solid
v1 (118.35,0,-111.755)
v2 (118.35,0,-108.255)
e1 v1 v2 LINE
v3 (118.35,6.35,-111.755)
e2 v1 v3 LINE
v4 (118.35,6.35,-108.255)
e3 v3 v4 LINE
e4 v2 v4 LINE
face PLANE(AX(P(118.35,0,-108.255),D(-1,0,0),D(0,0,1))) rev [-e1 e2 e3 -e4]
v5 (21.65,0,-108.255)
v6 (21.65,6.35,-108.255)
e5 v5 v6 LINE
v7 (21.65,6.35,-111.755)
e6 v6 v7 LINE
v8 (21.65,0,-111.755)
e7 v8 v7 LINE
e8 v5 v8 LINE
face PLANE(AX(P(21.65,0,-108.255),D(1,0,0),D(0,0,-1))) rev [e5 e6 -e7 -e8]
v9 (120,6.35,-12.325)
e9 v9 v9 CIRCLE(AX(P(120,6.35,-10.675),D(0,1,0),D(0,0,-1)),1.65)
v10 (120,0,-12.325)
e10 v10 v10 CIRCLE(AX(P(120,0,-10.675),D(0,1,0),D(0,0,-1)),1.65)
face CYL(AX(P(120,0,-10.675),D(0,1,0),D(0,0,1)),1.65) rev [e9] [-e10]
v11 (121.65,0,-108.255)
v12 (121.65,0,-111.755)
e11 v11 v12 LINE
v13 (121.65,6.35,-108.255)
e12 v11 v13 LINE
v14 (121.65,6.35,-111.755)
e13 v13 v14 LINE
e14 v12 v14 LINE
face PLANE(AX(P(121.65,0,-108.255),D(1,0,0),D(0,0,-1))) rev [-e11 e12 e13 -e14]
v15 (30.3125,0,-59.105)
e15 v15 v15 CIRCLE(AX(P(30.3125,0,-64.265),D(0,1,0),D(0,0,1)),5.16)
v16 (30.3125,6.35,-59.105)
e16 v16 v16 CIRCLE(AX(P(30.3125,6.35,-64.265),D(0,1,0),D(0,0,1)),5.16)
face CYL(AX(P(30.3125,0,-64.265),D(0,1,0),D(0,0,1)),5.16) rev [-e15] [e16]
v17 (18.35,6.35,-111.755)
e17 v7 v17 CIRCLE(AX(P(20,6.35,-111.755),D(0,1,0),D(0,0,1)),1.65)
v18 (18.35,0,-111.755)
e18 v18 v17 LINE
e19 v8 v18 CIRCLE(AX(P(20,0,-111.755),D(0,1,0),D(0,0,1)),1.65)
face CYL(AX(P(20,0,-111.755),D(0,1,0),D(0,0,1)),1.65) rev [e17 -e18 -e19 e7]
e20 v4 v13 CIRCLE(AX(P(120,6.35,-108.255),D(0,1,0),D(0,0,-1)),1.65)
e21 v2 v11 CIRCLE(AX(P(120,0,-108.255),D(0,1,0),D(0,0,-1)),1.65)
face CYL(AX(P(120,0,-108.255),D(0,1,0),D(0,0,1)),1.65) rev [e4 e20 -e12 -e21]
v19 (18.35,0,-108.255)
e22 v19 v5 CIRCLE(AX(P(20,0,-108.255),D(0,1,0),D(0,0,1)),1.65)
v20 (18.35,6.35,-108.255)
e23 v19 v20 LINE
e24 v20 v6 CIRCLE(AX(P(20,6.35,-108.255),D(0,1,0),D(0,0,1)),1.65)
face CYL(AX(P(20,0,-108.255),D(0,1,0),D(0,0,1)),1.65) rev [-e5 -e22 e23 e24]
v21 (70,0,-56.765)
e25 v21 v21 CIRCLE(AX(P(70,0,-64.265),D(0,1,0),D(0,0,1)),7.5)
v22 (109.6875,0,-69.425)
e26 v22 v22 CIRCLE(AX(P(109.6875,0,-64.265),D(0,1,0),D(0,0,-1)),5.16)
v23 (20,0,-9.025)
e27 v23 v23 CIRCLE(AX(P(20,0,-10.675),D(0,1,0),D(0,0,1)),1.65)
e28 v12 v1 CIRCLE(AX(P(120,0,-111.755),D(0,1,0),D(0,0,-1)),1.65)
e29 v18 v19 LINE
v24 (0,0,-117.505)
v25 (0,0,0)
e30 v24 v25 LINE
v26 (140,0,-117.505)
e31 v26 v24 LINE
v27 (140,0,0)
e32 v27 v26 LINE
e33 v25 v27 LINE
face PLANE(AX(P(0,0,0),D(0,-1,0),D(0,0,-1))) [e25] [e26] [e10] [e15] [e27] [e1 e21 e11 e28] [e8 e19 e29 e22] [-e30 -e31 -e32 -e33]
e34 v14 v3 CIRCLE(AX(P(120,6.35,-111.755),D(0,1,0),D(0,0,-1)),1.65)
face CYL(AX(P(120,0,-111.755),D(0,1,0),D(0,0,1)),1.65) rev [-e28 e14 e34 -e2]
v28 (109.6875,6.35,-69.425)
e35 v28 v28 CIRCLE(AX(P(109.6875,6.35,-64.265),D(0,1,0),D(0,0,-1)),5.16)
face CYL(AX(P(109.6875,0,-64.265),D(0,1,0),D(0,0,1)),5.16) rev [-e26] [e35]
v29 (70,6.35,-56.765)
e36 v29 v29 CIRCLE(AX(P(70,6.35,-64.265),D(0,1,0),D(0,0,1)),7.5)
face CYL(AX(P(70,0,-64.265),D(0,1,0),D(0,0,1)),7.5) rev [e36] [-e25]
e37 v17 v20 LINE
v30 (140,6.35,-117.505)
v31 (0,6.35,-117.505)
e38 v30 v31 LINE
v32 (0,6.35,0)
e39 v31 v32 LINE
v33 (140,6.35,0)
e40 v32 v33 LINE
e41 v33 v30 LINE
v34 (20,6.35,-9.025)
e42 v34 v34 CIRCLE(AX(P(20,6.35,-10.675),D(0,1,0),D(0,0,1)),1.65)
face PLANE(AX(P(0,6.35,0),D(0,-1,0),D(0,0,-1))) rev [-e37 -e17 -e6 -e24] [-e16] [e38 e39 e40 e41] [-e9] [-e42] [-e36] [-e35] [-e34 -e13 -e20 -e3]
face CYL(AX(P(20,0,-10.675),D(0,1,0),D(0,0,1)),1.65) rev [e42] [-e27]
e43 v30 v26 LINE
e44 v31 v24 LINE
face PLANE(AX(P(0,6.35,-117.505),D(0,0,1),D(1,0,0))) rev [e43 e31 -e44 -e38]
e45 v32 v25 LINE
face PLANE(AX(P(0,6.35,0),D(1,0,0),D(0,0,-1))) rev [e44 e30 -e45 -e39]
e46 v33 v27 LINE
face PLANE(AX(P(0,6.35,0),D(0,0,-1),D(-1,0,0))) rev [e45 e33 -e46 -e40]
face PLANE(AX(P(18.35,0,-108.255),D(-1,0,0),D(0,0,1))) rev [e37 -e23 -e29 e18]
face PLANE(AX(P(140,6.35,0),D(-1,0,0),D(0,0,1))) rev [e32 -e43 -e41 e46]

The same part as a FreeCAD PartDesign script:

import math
import FreeCAD as App
import Part
import Sketcher

V = App.Vector
Q = App.Units.Quantity


def add_polygon(sketch, points):
    """Adds a closed chain of lines whose ends are joined by coincident constraints."""
    first, n = sketch.GeometryCount, len(points)
    for a, b in zip(points, points[1:] + points[:1]):
        sketch.addGeometry(Part.LineSegment(App.Vector(*a, 0), App.Vector(*b, 0)), False)
    for i in range(n):
        sketch.addConstraint(Sketcher.Constraint("Coincident", first + i, 2, first + (i + 1) % n, 1))

doc = App.newDocument("Part")
params = doc.addObject("Spreadsheet::Sheet", "Params")
for row, (alias, value) in enumerate([
    ("sketch1_width", "140 mm"),
    ("pad1_length", "6.35 mm"),
    ("sketch2_diameter", "15 mm"),
    ("sketch2_diameter2", "3.3 mm"),
    ("sketch2_diameter3", "10.32 mm"),
    ("sketch2_height", "3.5 mm"),
], start=1):
    params.set(f"A{row}", alias)
    params.set(f"B{row}", "=" + value)
    params.setAlias(f"B{row}", alias)

body = doc.addObject("PartDesign::Body", "Body")

sketch1 = body.newObject("Sketcher::SketchObject", "Sketch")
sketch1.AttachmentSupport = (doc.getObject("XZ_Plane"), [""])
sketch1.MapMode = "FlatFace"
add_polygon(sketch1, [(0, -118), (0, 0), (140, 0), (140, -118)])
sketch1.addConstraint([
    Sketcher.Constraint("Vertical", 0),
    Sketcher.Constraint("Horizontal", 1),
    Sketcher.Constraint("Vertical", 2),
    Sketcher.Constraint("Horizontal", 3),
    Sketcher.Constraint("Coincident", 0, 2, -1, 1),
    Sketcher.Constraint("DistanceX", 1, 1, 1, 2, Q("140 mm")),
    Sketcher.Constraint("DistanceY", 0, 1, 0, 2, Q("117.505 mm")),
])
sketch1.setExpression("Constraints[9]", "Params.sketch1_width")
pad1 = body.newObject("PartDesign::Pad", "Pad")
pad1.Profile = sketch1
pad1.setExpression("Length", "Params.pad1_length")
pad1.Reversed = True

sketch2 = body.newObject("Sketcher::SketchObject", "Sketch001")
sketch2.AttachmentSupport = (doc.getObject("XZ_Plane"), [""])
sketch2.MapMode = "FlatFace"
sketch2.AttachmentOffset = App.Placement(V(0, 0, -6.35), App.Rotation())
sketch2.addGeometry([
    Part.Circle(V(20, -10.7, 0), V(0, 0, 1), 1.6),
    Part.Circle(V(70, -64.3, 0), V(0, 0, 1), 7.5),
    Part.Circle(V(30.3, -64.3, 0), V(0, 0, 1), 5.2),
    Part.Circle(V(120, -10.7, 0), V(0, 0, 1), 1.6),
    Part.Circle(V(109.7, -64.3, 0), V(0, 0, 1), 5.2),
    Part.LineSegment(V(18.4, -111.8, 0), V(18.4, -108.3, 0)),
    Part.ArcOfCircle(Part.Circle(V(20, -108.3, 0), V(0, 0, 1), 1.6), math.radians(0), math.radians(180)),
    Part.LineSegment(V(21.6, -108.3, 0), V(21.6, -111.8, 0)),
    Part.ArcOfCircle(Part.Circle(V(20, -111.8, 0), V(0, 0, 1), 1.6), math.radians(180), math.radians(360)),
    Part.LineSegment(V(121.7, -108.3, 0), V(121.7, -111.8, 0)),
    Part.ArcOfCircle(Part.Circle(V(120, -111.8, 0), V(0, 0, 1), 1.6), math.radians(180), math.radians(360)),
    Part.LineSegment(V(118.3, -111.8, 0), V(118.3, -108.3, 0)),
    Part.ArcOfCircle(Part.Circle(V(120, -108.3, 0), V(0, 0, 1), 1.6), math.radians(0), math.radians(180)),
], False)
sketch2.addConstraint([
    Sketcher.Constraint("Tangent", 5, 2, 6, 2),
    Sketcher.Constraint("Tangent", 6, 1, 7, 1),
    Sketcher.Constraint("Tangent", 7, 2, 8, 2),
    Sketcher.Constraint("Tangent", 8, 1, 5, 1),
    Sketcher.Constraint("Tangent", 9, 2, 10, 2),
    Sketcher.Constraint("Tangent", 10, 1, 11, 1),
    Sketcher.Constraint("Tangent", 11, 2, 12, 2),
    Sketcher.Constraint("Tangent", 12, 1, 9, 1),
    Sketcher.Constraint("Vertical", 5),
    Sketcher.Constraint("Vertical", 7),
    Sketcher.Constraint("Vertical", 9),
    Sketcher.Constraint("Vertical", 11),
    Sketcher.Constraint("Equal", 0, 3),
    Sketcher.Constraint("Equal", 2, 4),
    Sketcher.Constraint("Equal", 3, 6),
    Sketcher.Constraint("Equal", 8, 10),
    Sketcher.Constraint("Horizontal", 1, 3, 2, 3),
    Sketcher.Constraint("Horizontal", 0, 3, 3, 3),
    Sketcher.Constraint("Horizontal", 2, 3, 4, 3),
    Sketcher.Constraint("Horizontal", 8, 3, 10, 3),
    Sketcher.Constraint("Horizontal", 6, 3, 12, 3),
    Sketcher.Constraint("Vertical", 0, 3, 6, 3),
    Sketcher.Constraint("Vertical", 3, 3, 10, 3),
    Sketcher.Constraint("Diameter", 1, Q("15 mm")),
    Sketcher.Constraint("Diameter", 0, Q("3.3 mm")),
    Sketcher.Constraint("Diameter", 2, Q("10.32 mm")),
    Sketcher.Constraint("DistanceY", 5, 1, 5, 2, Q("3.5 mm")),
    Sketcher.Constraint("DistanceX", -1, 1, 0, 3, Q("20 mm")),
    Sketcher.Constraint("DistanceX", -1, 1, 1, 3, Q("70 mm")),
    Sketcher.Constraint("DistanceX", -1, 1, 3, 3, Q("120 mm")),
    Sketcher.Constraint("DistanceY", 1, 3, 0, 3, Q("53.59 mm")),
    Sketcher.Constraint("DistanceY", 6, 3, 2, 3, Q("43.99 mm")),
    Sketcher.Constraint("DistanceY", 0, 3, -1, 1, Q("10.675 mm")),
    Sketcher.Constraint("DistanceX", 2, 3, 4, 3, Q("79.375 mm")),
    Sketcher.Constraint("DistanceX", -1, 1, 2, 3, Q("30.3125 mm")),
])
sketch2.setExpression("Constraints[23]", "Params.sketch2_diameter")
sketch2.setExpression("Constraints[24]", "Params.sketch2_diameter2")
sketch2.setExpression("Constraints[25]", "Params.sketch2_diameter3")
sketch2.setExpression("Constraints[26]", "Params.sketch2_height")
pocket1 = body.newObject("PartDesign::Pocket", "Pocket")
pocket1.Profile = sketch2
pocket1.Type = "ThroughAll"
pocket1.Reversed = True

doc.recompute()
